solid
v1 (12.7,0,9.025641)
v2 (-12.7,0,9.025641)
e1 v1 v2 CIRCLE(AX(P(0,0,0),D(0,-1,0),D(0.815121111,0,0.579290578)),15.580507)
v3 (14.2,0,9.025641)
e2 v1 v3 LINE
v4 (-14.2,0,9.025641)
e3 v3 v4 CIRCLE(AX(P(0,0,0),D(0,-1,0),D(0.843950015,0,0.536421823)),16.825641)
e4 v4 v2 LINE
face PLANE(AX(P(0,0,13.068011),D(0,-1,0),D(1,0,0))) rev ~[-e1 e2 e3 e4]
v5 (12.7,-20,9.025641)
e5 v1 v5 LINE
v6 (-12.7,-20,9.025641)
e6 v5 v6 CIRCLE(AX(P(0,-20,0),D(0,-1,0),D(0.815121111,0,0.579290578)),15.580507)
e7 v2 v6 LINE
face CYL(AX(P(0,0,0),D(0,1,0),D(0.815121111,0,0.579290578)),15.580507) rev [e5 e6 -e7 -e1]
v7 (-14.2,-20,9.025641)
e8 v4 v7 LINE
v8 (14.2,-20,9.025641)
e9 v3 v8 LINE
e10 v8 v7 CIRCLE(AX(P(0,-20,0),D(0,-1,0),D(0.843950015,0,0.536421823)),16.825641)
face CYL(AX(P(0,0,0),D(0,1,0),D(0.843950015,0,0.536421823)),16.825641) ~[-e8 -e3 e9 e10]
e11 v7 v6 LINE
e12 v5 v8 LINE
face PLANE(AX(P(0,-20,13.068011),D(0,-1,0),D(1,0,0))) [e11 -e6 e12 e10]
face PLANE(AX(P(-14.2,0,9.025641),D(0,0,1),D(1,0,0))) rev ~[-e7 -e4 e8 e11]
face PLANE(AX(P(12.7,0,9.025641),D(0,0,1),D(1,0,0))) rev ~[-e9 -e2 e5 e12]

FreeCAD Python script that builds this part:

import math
import FreeCAD as App
import Part
import Sketcher

V = App.Vector
Q = App.Units.Quantity

doc = App.newDocument("Part")
body = doc.addObject("PartDesign::Body", "Body")

# Sketch on XZ plane
sketch1 = body.newObject("Sketcher::SketchObject", "Sketch")
sketch1.AttachmentSupport = (doc.getObject("XZ_Plane"), [""])
sketch1.MapMode = "FlatFace"
sketch1.addGeometry([
    Part.ArcOfCircle(Part.Circle(V(0, 0, 0), V(0, 0, 1), 16.8), math.radians(32), math.radians(148)),
    Part.LineSegment(V(-14.2, 9, 0), V(-12.7, 9, 0)),
    Part.ArcOfCircle(Part.Circle(V(0, 0, 0), V(0, 0, 1), 15.6), math.radians(35), math.radians(145)),
    Part.LineSegment(V(12.7, 9, 0), V(14.2, 9, 0)),
], False)
sketch1.addConstraint([
    Sketcher.Constraint("Coincident", 0, 2, 1, 1),
    Sketcher.Constraint("Coincident", 1, 2, 2, 2),
    Sketcher.Constraint("Coincident", 2, 1, 3, 1),
    Sketcher.Constraint("Coincident", 3, 2, 0, 1),
    Sketcher.Constraint("Horizontal", 1),
    Sketcher.Constraint("Horizontal", 3),
    Sketcher.Constraint("Coincident", 0, 3, -1, 1),
    Sketcher.Constraint("Coincident", 2, 3, -1, 1),
    Sketcher.Constraint("Horizontal", 1, 2, 2, 1),
    Sketcher.Constraint("DistanceX", 1, 1, 1, 2, Q("1.5 mm")),
    Sketcher.Constraint("DistanceX", 0, 2, -1, 1, Q("14.2 mm")),
    Sketcher.Constraint("Radius", 0, Q("16.825641 mm")),
])
pad1 = body.newObject("PartDesign::Pad", "Pad")
pad1.Profile = sketch1
pad1.Length = 20

doc.recompute()
